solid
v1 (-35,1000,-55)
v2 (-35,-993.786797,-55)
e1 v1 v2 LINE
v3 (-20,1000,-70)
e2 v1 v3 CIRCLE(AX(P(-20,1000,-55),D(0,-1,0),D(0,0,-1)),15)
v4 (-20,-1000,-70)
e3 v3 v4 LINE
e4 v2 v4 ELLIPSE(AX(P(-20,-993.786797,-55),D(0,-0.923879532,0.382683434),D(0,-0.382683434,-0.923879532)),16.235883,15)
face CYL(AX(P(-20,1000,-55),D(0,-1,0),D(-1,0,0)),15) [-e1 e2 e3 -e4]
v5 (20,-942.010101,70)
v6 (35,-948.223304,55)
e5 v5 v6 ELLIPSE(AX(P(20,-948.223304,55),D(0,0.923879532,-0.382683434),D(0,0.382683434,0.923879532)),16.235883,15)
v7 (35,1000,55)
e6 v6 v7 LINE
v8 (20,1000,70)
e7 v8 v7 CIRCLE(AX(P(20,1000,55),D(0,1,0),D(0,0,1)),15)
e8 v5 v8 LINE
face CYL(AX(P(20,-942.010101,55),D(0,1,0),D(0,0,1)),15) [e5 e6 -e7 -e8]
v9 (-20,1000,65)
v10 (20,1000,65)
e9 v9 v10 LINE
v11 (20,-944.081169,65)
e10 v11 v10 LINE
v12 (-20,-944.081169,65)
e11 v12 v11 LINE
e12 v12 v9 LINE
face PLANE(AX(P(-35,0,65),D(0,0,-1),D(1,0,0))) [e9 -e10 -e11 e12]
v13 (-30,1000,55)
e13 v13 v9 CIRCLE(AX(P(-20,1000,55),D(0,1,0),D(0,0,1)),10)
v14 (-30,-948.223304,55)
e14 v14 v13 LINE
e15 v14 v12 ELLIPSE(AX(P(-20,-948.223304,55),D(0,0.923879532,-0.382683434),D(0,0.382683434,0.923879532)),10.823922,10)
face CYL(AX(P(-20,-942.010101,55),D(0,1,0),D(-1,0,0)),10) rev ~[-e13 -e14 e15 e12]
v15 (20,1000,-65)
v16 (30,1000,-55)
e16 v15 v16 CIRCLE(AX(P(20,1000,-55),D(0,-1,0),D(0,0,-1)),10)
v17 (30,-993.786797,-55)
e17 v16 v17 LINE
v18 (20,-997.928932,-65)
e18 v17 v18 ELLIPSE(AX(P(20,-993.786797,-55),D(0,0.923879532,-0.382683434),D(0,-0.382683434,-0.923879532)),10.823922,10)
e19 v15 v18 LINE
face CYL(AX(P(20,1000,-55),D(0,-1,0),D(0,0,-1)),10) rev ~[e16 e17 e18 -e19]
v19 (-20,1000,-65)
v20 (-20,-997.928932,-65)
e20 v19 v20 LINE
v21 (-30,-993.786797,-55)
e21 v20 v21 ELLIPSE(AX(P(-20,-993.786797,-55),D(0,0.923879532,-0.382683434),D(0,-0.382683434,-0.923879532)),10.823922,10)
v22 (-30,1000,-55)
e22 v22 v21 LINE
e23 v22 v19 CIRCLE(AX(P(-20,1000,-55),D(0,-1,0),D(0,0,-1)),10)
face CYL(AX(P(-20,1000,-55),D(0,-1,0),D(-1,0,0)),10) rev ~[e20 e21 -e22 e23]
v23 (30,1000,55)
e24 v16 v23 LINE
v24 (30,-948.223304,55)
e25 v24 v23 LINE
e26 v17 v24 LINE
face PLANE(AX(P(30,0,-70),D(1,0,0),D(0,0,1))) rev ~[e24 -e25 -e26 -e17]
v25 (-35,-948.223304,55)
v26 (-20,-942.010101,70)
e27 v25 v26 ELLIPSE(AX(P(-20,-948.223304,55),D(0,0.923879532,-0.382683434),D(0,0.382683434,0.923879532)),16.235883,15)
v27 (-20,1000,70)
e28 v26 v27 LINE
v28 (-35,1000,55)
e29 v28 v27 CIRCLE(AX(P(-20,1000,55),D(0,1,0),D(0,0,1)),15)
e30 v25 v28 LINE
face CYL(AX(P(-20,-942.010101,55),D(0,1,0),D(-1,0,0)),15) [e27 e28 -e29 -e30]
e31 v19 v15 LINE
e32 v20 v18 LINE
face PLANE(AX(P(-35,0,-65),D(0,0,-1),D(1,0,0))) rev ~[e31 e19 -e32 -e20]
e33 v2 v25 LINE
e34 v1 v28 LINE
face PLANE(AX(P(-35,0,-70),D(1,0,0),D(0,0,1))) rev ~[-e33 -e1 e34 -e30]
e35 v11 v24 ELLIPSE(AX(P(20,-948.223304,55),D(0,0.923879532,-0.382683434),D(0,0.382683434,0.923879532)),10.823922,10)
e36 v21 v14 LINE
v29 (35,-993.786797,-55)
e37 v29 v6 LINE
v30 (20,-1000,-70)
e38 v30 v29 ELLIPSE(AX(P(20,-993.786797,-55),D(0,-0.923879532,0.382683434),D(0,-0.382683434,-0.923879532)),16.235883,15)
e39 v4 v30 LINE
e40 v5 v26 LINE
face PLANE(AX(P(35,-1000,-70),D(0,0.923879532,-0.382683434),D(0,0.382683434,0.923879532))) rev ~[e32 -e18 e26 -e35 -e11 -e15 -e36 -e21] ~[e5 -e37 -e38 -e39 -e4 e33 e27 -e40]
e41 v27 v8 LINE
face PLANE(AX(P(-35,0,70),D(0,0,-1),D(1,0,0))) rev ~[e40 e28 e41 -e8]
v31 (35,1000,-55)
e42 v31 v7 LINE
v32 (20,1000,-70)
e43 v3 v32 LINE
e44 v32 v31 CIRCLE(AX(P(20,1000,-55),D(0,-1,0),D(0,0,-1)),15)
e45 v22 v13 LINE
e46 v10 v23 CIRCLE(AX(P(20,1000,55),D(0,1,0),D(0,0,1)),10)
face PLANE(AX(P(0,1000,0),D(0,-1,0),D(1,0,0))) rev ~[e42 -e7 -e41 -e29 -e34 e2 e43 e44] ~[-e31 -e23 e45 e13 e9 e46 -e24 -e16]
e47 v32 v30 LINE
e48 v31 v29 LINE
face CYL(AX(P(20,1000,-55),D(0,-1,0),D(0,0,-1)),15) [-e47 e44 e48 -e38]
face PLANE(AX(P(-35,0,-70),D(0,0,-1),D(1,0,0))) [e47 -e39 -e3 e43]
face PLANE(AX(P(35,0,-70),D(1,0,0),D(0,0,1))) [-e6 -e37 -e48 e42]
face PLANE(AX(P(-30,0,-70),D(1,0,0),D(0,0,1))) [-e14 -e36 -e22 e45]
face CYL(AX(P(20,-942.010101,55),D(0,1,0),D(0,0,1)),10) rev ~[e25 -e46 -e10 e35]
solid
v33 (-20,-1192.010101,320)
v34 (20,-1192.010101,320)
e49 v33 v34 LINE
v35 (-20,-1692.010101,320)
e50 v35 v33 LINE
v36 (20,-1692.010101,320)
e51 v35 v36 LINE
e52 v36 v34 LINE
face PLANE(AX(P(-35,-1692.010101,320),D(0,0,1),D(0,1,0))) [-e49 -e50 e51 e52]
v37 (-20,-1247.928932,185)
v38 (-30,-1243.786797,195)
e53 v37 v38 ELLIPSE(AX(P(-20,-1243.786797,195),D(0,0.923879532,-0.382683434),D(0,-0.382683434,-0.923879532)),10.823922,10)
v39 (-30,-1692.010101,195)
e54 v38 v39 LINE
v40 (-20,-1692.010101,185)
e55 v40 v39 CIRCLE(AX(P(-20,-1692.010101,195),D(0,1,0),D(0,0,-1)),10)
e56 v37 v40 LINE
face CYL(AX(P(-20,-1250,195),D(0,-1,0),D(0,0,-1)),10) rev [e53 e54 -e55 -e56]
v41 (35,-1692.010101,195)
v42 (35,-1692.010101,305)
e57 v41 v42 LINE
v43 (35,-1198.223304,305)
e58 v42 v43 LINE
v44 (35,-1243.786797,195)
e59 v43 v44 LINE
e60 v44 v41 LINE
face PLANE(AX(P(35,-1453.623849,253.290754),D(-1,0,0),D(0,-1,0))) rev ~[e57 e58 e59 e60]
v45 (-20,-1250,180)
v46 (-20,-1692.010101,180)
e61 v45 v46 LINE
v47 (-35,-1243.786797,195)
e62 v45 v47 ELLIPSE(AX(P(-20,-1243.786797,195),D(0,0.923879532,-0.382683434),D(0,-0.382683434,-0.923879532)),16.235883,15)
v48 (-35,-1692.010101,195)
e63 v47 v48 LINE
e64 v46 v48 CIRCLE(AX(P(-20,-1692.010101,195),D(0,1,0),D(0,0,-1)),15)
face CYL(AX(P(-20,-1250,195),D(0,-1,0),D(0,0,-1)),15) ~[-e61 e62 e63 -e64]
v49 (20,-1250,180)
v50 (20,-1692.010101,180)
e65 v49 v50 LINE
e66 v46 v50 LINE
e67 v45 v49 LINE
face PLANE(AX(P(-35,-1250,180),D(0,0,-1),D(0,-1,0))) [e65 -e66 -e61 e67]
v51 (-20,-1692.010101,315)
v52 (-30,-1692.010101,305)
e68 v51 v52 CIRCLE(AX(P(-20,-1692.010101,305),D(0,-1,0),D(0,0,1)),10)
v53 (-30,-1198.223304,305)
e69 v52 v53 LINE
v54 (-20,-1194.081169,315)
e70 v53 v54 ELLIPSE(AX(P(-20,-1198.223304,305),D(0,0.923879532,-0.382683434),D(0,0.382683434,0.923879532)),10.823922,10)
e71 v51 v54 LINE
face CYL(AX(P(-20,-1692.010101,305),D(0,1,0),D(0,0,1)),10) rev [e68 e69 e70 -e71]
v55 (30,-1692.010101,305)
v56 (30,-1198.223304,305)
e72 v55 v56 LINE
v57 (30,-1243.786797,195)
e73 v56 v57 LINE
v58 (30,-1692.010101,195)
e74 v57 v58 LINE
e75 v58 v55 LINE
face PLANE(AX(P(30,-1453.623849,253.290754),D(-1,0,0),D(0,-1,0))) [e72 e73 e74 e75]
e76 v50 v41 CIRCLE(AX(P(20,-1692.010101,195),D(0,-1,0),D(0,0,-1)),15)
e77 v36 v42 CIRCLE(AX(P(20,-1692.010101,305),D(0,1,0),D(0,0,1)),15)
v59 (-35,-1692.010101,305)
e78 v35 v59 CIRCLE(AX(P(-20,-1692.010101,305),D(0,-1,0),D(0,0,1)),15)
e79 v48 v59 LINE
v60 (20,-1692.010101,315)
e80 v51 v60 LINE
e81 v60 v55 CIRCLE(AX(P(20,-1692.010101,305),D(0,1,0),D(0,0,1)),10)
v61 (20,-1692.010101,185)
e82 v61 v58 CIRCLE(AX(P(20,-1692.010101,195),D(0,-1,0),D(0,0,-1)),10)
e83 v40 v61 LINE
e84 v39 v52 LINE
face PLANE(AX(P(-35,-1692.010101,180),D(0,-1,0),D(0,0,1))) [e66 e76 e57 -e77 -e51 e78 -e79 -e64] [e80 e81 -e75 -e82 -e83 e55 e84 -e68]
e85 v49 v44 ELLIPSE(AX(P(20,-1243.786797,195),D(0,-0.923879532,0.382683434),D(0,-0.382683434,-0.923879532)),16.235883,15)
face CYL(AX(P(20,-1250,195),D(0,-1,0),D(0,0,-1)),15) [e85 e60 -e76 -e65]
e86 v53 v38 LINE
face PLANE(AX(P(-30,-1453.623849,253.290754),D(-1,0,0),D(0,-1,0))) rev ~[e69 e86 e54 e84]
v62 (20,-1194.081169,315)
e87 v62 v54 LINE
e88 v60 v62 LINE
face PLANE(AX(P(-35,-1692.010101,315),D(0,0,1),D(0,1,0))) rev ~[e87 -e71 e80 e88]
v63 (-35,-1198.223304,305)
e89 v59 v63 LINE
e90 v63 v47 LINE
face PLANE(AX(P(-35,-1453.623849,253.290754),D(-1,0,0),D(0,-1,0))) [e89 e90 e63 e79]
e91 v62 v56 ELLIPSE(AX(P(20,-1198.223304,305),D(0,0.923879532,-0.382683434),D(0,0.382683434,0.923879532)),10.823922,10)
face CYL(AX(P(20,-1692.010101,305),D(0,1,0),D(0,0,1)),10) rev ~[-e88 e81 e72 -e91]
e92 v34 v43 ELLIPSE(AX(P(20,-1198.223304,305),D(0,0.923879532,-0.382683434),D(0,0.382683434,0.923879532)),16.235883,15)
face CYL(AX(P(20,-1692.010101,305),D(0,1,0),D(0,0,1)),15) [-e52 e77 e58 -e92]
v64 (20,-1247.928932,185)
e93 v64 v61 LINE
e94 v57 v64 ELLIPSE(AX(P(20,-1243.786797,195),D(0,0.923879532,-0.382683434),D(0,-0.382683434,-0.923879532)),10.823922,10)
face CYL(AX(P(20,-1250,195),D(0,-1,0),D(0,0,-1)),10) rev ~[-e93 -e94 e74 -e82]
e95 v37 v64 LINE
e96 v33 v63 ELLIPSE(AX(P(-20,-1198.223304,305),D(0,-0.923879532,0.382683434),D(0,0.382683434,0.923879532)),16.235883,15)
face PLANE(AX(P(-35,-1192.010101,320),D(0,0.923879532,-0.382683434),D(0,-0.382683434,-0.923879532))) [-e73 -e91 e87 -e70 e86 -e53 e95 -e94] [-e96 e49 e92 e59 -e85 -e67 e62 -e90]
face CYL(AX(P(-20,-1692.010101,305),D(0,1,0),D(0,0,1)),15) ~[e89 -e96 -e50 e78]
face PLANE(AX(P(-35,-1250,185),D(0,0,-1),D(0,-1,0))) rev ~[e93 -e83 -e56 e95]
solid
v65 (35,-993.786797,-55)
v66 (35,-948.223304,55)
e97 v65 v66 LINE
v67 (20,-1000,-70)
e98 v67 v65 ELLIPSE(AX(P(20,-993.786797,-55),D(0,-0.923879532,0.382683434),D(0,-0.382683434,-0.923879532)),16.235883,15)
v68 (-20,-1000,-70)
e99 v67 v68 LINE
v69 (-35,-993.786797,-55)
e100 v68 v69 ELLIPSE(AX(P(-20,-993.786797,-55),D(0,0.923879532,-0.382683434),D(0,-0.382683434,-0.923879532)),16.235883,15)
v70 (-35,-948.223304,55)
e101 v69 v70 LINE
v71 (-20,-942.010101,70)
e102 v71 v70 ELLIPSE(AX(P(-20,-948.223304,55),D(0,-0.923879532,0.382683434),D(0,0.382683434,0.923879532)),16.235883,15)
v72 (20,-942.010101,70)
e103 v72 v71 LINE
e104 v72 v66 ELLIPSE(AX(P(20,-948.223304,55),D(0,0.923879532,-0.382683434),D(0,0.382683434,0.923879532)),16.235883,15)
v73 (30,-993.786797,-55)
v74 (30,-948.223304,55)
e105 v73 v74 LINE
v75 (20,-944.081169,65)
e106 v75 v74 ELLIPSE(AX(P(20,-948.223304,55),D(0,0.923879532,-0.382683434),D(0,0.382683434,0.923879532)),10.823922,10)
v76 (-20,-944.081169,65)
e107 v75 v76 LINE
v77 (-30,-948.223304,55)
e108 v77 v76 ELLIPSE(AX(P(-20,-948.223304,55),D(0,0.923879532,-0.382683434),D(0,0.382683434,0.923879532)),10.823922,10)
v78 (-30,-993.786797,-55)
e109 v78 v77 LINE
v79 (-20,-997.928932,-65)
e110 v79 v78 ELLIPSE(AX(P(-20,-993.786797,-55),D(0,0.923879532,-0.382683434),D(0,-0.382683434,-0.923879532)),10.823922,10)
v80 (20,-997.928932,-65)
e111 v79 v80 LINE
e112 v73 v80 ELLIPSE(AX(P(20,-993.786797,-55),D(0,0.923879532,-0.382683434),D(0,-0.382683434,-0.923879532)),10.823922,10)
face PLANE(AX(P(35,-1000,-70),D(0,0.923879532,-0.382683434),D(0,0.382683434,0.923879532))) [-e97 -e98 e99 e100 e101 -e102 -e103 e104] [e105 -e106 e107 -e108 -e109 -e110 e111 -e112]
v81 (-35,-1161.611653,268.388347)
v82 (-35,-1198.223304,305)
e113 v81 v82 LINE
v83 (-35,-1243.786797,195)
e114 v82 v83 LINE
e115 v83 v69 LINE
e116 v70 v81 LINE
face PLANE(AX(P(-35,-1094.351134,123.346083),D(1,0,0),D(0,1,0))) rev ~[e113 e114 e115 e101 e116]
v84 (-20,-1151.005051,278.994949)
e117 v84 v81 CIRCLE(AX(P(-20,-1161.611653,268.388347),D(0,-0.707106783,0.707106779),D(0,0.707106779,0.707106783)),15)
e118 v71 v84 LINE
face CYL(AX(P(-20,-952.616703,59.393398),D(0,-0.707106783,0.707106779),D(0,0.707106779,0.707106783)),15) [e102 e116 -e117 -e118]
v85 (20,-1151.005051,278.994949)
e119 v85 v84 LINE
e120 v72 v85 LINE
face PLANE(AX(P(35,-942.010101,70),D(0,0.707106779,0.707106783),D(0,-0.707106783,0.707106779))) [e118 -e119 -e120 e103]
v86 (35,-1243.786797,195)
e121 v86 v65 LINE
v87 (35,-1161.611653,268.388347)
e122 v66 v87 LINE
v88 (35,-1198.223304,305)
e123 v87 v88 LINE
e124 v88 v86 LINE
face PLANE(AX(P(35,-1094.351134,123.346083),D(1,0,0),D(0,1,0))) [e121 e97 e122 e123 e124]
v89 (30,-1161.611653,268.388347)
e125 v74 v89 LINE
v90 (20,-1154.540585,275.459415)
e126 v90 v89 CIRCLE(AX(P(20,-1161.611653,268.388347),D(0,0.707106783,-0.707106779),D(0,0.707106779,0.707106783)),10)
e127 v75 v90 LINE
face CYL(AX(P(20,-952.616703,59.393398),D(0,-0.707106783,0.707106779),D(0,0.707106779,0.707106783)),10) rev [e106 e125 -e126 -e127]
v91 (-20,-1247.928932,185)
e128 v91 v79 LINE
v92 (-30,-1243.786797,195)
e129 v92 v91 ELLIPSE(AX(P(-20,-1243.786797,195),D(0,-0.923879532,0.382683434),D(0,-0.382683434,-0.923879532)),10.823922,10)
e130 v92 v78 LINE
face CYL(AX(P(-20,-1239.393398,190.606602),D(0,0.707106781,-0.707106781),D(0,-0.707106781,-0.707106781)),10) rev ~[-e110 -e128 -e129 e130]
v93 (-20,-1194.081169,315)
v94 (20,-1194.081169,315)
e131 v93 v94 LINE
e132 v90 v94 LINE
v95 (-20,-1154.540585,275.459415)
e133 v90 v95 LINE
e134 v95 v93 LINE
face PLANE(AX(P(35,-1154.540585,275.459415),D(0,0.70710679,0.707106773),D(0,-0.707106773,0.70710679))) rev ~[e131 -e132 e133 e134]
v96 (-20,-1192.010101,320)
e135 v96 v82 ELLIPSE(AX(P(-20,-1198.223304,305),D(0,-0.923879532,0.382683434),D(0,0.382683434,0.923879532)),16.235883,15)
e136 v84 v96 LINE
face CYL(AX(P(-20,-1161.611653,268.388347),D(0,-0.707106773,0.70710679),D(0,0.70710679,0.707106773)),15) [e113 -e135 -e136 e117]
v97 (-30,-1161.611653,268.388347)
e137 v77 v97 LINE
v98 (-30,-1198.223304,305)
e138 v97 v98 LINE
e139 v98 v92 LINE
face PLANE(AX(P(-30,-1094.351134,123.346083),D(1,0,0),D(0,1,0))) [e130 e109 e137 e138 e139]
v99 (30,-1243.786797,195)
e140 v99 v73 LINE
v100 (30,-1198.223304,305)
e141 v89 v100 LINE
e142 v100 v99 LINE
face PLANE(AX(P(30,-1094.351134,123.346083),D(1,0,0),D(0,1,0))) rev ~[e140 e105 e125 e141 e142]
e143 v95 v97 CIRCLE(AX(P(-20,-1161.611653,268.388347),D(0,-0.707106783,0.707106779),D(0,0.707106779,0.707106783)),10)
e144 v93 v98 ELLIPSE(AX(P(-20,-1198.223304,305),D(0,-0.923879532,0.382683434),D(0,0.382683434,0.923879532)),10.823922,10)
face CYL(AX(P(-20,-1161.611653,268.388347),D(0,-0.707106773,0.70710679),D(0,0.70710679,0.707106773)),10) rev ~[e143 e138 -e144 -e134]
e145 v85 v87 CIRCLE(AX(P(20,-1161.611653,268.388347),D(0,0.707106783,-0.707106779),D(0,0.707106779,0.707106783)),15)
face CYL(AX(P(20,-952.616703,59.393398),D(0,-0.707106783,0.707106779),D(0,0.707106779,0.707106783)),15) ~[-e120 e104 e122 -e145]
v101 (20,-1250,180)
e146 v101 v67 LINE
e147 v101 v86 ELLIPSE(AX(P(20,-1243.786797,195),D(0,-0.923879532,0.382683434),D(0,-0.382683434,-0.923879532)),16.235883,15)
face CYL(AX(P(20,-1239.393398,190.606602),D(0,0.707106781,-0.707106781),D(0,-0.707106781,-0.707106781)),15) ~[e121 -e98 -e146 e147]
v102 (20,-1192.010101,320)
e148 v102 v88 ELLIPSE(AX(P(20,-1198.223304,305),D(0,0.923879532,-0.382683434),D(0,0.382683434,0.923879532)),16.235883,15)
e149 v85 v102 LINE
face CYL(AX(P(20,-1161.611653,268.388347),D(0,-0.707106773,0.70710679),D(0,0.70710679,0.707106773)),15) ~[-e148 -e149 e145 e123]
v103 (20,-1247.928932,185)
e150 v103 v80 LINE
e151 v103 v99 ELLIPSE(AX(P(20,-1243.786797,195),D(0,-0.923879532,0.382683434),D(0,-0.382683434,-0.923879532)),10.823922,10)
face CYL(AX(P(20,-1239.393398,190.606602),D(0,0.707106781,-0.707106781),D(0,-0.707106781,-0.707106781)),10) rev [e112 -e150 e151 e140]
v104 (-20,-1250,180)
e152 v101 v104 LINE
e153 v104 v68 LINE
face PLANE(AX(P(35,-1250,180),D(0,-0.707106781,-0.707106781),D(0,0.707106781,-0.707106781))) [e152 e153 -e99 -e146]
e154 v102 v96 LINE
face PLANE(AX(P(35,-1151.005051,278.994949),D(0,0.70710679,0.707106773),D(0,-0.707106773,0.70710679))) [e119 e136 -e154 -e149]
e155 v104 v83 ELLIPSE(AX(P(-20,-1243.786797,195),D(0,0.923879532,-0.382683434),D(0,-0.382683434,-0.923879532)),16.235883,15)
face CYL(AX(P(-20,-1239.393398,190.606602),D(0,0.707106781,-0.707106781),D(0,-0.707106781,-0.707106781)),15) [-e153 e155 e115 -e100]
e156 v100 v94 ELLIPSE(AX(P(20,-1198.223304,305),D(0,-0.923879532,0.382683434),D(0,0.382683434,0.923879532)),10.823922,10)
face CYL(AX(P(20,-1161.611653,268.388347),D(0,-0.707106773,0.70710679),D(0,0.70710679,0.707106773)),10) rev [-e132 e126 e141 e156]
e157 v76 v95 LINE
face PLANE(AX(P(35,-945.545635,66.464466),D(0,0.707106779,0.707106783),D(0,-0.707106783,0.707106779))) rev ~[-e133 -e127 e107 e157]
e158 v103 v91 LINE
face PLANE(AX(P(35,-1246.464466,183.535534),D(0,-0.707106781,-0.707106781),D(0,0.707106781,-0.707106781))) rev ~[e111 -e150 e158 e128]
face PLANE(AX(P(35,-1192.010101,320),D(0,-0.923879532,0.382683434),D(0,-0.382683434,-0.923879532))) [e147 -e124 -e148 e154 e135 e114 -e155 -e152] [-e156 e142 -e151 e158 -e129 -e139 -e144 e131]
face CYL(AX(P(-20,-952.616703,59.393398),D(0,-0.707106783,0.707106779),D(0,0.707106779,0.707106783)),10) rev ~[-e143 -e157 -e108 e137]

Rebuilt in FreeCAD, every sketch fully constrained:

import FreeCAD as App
import Part
import Sketcher
Q = App.Units.Quantity


def edges_at(feature, points):
    """Names of the edges that pass closest to the given points."""
    edges = feature.Shape.Edges
    near = lambda p: min(range(len(edges)), key=lambda i: edges[i].distToShape(Part.Vertex(*p))[0])
    return sorted({f"Edge{near(p) + 1}" for p in points})


def faces_at(feature, points):
    """Names of the faces that lie closest to the given points."""
    faces = feature.Shape.Faces
    near = lambda p: min(range(len(faces)), key=lambda i: faces[i].distToShape(Part.Vertex(*p))[0])
    return sorted({f"Face{near(p) + 1}" for p in points})


def add_polygon(sketch, points):
    """Adds a closed chain of lines whose ends are joined by coincident constraints."""
    first, n = sketch.GeometryCount, len(points)
    for a, b in zip(points, points[1:] + points[:1]):
        sketch.addGeometry(Part.LineSegment(App.Vector(*a, 0), App.Vector(*b, 0)), False)
    for i in range(n):
        sketch.addConstraint(Sketcher.Constraint("Coincident", first + i, 2, first + (i + 1) % n, 1))

doc = App.newDocument("Part")
body = doc.addObject("PartDesign::Body", "Body")

# Sketch on XZ plane
sketch1 = body.newObject("Sketcher::SketchObject", "Sketch")
sketch1.AttachmentSupport = (doc.getObject("XZ_Plane"), [""])
sketch1.MapMode = "FlatFace"
add_polygon(sketch1, [(-35, 70), (-35, -70), (35, -70), (35, 70)])  # lines 0-3
sketch1.addConstraint([
    Sketcher.Constraint("Vertical", 0),
    Sketcher.Constraint("Horizontal", 1),
    Sketcher.Constraint("Vertical", 2),
    Sketcher.Constraint("Horizontal", 3),
    Sketcher.Constraint("Symmetric", 0, 2, 2, 2, -1, 1),
    Sketcher.Constraint("DistanceX", 1, 1, 1, 2, 70.0),
    Sketcher.Constraint("DistanceY", 0, 2, 0, 1, 140.0),
])
pad1 = body.newObject("PartDesign::Pad", "Pad")
pad1.Profile = sketch1
pad1.Length = 2000
pad1.Midplane = True

# Sketch on YZ plane
sketch2 = body.newObject("Sketcher::SketchObject", "Sketch001")
sketch2.AttachmentSupport = (doc.getObject("YZ_Plane"), [""])
sketch2.MapMode = "FlatFace"
sketch2.AttachmentOffset = App.Placement(App.Vector(0, 0, 35), App.Rotation())
add_polygon(sketch2, [(-1000, 70), (-1000, -70), (-942, 70)])  # lines 0-2
sketch2.addConstraint([
    Sketcher.Constraint("Vertical", 0),
    Sketcher.Constraint("Horizontal", 2),
    Sketcher.Constraint("DistanceY", 0, 2, 0, 1, 140.0),
    Sketcher.Constraint("DistanceX", 0, 2, -1, 1, 1000.0),
    Sketcher.Constraint("DistanceY", 0, 2, -1, 1, 70.0),
    Sketcher.Constraint("Angle", 1, Q("67.5 deg")),
])
pocket1 = body.newObject("PartDesign::Pocket", "Pocket")
pocket1.Profile = sketch2
pocket1.Length = 70
doc.recompute()

fillet = body.newObject("PartDesign::Fillet", "Fillet")
fillet.Base = (pocket1, edges_at(pocket1, [
    (35, 28.995, 70),
    (-35, 28.995, 70),
    (35, 0, -70),
    (-35, 0, -70),
]))
fillet.Radius = 15
doc.recompute()

thickness = body.newObject("PartDesign::Thickness", "Thickness")
thickness.Base = (fillet, faces_at(fillet, [(0, -971.005, 0), (0, 1000, 0)]))
thickness.Value = 5
thickness.Reversed = True
thickness.Join = "Arc"
body2 = doc.addObject("PartDesign::Body", "Body001")

# Sketch on YZ plane
sketch3 = body2.newObject("Sketcher::SketchObject", "Sketch002")
sketch3.AttachmentSupport = (doc.getObject("YZ_Plane001"), [""])
sketch3.MapMode = "FlatFace"
sketch3.AttachmentOffset = App.Placement(App.Vector(0, 0, 35), App.Rotation())
add_polygon(sketch3, [(-1250, 180), (-1000, -70), (-942, 70), (-1151, 279), (-1192, 320)])  # lines 0-4
sketch3.addConstraint([
    Sketcher.Constraint("Parallel", 0, 2),
    Sketcher.Constraint("Parallel", 2, 3),
    Sketcher.Constraint("Parallel", 1, 4),
    Sketcher.Constraint("Angle", 0, Q("-45 deg")),
    Sketcher.Constraint("DistanceX", 0, 2, -1, 1, 1000.0),
    Sketcher.Constraint("DistanceY", 0, 2, -1, 1, 70.0),
    Sketcher.Constraint("DistanceY", -1, 1, 1, 2, 70.0),
    Sketcher.Constraint("DistanceY", -1, 1, 3, 2, 320.0),
    Sketcher.Constraint("Angle", 1, Q("67.5 deg")),
    Sketcher.Constraint("Distance", 3, 57.989899),
])
pad2 = body2.newObject("PartDesign::Pad", "Pad001")
pad2.Profile = sketch3
pad2.Length = 70
pad2.Reversed = True
doc.recompute()

fillet2 = body2.newObject("PartDesign::Fillet", "Fillet001")
fillet2.Base = (pad2, edges_at(pad2, [
    (35, -1046.508, 174.497),
    (-35, -1046.508, 174.497),
    (35, -1125, 55),
    (-35, -1125, 55),
]))
fillet2.Radius = 15
doc.recompute()

thickness2 = body2.newObject("PartDesign::Thickness", "Thickness001")
thickness2.Base = (fillet2, faces_at(fillet2, [(0, -971.005, 0), (0, -1221.005, 250)]))
thickness2.Value = 5
thickness2.Reversed = True
thickness2.Join = "Arc"
body3 = doc.addObject("PartDesign::Body", "Body002")

# Sketch on YZ plane
sketch4 = body3.newObject("Sketcher::SketchObject", "Sketch003")
sketch4.AttachmentSupport = (doc.getObject("YZ_Plane002"), [""])
sketch4.MapMode = "FlatFace"
sketch4.AttachmentOffset = App.Placement(App.Vector(0, 0, -35), App.Rotation())
add_polygon(sketch4, [(-1692, 320), (-1192, 320), (-1250, 180), (-1692, 180)])  # lines 0-3
sketch4.addConstraint([
    Sketcher.Constraint("Horizontal", 0),
    Sketcher.Constraint("Horizontal", 2),
    Sketcher.Constraint("Vertical", 3),
    Sketcher.Constraint("DistanceX", 0, 1, 0, 2, 500.0),
    Sketcher.Constraint("DistanceY", 3, 1, 3, 2, 140.0),
    Sketcher.Constraint("DistanceY", -1, 1, 0, 2, 320.0),
    Sketcher.Constraint("DistanceX", 1, 2, -1, 1, 1250.0),
    Sketcher.Constraint("Angle", 1, Q("-112.5 deg")),
])
pad3 = body3.newObject("PartDesign::Pad", "Pad002")
pad3.Profile = sketch4
pad3.Length = 70
doc.recompute()

fillet3 = body3.newObject("PartDesign::Fillet", "Fillet002")
fillet3.Base = (pad3, edges_at(pad3, [
    (35, -1471.005, 180),
    (-35, -1471.005, 180),
    (-35, -1442.01, 320),
    (35, -1442.01, 320),
]))
fillet3.Radius = 15
doc.recompute()

thickness3 = body3.newObject("PartDesign::Thickness", "Thickness002")
thickness3.Base = (fillet3, faces_at(fillet3, [(0, -1221.005, 250), (0, -1692.01, 250)]))
thickness3.Value = 5
thickness3.Reversed = True
thickness3.Join = "Arc"

doc.recompute()
